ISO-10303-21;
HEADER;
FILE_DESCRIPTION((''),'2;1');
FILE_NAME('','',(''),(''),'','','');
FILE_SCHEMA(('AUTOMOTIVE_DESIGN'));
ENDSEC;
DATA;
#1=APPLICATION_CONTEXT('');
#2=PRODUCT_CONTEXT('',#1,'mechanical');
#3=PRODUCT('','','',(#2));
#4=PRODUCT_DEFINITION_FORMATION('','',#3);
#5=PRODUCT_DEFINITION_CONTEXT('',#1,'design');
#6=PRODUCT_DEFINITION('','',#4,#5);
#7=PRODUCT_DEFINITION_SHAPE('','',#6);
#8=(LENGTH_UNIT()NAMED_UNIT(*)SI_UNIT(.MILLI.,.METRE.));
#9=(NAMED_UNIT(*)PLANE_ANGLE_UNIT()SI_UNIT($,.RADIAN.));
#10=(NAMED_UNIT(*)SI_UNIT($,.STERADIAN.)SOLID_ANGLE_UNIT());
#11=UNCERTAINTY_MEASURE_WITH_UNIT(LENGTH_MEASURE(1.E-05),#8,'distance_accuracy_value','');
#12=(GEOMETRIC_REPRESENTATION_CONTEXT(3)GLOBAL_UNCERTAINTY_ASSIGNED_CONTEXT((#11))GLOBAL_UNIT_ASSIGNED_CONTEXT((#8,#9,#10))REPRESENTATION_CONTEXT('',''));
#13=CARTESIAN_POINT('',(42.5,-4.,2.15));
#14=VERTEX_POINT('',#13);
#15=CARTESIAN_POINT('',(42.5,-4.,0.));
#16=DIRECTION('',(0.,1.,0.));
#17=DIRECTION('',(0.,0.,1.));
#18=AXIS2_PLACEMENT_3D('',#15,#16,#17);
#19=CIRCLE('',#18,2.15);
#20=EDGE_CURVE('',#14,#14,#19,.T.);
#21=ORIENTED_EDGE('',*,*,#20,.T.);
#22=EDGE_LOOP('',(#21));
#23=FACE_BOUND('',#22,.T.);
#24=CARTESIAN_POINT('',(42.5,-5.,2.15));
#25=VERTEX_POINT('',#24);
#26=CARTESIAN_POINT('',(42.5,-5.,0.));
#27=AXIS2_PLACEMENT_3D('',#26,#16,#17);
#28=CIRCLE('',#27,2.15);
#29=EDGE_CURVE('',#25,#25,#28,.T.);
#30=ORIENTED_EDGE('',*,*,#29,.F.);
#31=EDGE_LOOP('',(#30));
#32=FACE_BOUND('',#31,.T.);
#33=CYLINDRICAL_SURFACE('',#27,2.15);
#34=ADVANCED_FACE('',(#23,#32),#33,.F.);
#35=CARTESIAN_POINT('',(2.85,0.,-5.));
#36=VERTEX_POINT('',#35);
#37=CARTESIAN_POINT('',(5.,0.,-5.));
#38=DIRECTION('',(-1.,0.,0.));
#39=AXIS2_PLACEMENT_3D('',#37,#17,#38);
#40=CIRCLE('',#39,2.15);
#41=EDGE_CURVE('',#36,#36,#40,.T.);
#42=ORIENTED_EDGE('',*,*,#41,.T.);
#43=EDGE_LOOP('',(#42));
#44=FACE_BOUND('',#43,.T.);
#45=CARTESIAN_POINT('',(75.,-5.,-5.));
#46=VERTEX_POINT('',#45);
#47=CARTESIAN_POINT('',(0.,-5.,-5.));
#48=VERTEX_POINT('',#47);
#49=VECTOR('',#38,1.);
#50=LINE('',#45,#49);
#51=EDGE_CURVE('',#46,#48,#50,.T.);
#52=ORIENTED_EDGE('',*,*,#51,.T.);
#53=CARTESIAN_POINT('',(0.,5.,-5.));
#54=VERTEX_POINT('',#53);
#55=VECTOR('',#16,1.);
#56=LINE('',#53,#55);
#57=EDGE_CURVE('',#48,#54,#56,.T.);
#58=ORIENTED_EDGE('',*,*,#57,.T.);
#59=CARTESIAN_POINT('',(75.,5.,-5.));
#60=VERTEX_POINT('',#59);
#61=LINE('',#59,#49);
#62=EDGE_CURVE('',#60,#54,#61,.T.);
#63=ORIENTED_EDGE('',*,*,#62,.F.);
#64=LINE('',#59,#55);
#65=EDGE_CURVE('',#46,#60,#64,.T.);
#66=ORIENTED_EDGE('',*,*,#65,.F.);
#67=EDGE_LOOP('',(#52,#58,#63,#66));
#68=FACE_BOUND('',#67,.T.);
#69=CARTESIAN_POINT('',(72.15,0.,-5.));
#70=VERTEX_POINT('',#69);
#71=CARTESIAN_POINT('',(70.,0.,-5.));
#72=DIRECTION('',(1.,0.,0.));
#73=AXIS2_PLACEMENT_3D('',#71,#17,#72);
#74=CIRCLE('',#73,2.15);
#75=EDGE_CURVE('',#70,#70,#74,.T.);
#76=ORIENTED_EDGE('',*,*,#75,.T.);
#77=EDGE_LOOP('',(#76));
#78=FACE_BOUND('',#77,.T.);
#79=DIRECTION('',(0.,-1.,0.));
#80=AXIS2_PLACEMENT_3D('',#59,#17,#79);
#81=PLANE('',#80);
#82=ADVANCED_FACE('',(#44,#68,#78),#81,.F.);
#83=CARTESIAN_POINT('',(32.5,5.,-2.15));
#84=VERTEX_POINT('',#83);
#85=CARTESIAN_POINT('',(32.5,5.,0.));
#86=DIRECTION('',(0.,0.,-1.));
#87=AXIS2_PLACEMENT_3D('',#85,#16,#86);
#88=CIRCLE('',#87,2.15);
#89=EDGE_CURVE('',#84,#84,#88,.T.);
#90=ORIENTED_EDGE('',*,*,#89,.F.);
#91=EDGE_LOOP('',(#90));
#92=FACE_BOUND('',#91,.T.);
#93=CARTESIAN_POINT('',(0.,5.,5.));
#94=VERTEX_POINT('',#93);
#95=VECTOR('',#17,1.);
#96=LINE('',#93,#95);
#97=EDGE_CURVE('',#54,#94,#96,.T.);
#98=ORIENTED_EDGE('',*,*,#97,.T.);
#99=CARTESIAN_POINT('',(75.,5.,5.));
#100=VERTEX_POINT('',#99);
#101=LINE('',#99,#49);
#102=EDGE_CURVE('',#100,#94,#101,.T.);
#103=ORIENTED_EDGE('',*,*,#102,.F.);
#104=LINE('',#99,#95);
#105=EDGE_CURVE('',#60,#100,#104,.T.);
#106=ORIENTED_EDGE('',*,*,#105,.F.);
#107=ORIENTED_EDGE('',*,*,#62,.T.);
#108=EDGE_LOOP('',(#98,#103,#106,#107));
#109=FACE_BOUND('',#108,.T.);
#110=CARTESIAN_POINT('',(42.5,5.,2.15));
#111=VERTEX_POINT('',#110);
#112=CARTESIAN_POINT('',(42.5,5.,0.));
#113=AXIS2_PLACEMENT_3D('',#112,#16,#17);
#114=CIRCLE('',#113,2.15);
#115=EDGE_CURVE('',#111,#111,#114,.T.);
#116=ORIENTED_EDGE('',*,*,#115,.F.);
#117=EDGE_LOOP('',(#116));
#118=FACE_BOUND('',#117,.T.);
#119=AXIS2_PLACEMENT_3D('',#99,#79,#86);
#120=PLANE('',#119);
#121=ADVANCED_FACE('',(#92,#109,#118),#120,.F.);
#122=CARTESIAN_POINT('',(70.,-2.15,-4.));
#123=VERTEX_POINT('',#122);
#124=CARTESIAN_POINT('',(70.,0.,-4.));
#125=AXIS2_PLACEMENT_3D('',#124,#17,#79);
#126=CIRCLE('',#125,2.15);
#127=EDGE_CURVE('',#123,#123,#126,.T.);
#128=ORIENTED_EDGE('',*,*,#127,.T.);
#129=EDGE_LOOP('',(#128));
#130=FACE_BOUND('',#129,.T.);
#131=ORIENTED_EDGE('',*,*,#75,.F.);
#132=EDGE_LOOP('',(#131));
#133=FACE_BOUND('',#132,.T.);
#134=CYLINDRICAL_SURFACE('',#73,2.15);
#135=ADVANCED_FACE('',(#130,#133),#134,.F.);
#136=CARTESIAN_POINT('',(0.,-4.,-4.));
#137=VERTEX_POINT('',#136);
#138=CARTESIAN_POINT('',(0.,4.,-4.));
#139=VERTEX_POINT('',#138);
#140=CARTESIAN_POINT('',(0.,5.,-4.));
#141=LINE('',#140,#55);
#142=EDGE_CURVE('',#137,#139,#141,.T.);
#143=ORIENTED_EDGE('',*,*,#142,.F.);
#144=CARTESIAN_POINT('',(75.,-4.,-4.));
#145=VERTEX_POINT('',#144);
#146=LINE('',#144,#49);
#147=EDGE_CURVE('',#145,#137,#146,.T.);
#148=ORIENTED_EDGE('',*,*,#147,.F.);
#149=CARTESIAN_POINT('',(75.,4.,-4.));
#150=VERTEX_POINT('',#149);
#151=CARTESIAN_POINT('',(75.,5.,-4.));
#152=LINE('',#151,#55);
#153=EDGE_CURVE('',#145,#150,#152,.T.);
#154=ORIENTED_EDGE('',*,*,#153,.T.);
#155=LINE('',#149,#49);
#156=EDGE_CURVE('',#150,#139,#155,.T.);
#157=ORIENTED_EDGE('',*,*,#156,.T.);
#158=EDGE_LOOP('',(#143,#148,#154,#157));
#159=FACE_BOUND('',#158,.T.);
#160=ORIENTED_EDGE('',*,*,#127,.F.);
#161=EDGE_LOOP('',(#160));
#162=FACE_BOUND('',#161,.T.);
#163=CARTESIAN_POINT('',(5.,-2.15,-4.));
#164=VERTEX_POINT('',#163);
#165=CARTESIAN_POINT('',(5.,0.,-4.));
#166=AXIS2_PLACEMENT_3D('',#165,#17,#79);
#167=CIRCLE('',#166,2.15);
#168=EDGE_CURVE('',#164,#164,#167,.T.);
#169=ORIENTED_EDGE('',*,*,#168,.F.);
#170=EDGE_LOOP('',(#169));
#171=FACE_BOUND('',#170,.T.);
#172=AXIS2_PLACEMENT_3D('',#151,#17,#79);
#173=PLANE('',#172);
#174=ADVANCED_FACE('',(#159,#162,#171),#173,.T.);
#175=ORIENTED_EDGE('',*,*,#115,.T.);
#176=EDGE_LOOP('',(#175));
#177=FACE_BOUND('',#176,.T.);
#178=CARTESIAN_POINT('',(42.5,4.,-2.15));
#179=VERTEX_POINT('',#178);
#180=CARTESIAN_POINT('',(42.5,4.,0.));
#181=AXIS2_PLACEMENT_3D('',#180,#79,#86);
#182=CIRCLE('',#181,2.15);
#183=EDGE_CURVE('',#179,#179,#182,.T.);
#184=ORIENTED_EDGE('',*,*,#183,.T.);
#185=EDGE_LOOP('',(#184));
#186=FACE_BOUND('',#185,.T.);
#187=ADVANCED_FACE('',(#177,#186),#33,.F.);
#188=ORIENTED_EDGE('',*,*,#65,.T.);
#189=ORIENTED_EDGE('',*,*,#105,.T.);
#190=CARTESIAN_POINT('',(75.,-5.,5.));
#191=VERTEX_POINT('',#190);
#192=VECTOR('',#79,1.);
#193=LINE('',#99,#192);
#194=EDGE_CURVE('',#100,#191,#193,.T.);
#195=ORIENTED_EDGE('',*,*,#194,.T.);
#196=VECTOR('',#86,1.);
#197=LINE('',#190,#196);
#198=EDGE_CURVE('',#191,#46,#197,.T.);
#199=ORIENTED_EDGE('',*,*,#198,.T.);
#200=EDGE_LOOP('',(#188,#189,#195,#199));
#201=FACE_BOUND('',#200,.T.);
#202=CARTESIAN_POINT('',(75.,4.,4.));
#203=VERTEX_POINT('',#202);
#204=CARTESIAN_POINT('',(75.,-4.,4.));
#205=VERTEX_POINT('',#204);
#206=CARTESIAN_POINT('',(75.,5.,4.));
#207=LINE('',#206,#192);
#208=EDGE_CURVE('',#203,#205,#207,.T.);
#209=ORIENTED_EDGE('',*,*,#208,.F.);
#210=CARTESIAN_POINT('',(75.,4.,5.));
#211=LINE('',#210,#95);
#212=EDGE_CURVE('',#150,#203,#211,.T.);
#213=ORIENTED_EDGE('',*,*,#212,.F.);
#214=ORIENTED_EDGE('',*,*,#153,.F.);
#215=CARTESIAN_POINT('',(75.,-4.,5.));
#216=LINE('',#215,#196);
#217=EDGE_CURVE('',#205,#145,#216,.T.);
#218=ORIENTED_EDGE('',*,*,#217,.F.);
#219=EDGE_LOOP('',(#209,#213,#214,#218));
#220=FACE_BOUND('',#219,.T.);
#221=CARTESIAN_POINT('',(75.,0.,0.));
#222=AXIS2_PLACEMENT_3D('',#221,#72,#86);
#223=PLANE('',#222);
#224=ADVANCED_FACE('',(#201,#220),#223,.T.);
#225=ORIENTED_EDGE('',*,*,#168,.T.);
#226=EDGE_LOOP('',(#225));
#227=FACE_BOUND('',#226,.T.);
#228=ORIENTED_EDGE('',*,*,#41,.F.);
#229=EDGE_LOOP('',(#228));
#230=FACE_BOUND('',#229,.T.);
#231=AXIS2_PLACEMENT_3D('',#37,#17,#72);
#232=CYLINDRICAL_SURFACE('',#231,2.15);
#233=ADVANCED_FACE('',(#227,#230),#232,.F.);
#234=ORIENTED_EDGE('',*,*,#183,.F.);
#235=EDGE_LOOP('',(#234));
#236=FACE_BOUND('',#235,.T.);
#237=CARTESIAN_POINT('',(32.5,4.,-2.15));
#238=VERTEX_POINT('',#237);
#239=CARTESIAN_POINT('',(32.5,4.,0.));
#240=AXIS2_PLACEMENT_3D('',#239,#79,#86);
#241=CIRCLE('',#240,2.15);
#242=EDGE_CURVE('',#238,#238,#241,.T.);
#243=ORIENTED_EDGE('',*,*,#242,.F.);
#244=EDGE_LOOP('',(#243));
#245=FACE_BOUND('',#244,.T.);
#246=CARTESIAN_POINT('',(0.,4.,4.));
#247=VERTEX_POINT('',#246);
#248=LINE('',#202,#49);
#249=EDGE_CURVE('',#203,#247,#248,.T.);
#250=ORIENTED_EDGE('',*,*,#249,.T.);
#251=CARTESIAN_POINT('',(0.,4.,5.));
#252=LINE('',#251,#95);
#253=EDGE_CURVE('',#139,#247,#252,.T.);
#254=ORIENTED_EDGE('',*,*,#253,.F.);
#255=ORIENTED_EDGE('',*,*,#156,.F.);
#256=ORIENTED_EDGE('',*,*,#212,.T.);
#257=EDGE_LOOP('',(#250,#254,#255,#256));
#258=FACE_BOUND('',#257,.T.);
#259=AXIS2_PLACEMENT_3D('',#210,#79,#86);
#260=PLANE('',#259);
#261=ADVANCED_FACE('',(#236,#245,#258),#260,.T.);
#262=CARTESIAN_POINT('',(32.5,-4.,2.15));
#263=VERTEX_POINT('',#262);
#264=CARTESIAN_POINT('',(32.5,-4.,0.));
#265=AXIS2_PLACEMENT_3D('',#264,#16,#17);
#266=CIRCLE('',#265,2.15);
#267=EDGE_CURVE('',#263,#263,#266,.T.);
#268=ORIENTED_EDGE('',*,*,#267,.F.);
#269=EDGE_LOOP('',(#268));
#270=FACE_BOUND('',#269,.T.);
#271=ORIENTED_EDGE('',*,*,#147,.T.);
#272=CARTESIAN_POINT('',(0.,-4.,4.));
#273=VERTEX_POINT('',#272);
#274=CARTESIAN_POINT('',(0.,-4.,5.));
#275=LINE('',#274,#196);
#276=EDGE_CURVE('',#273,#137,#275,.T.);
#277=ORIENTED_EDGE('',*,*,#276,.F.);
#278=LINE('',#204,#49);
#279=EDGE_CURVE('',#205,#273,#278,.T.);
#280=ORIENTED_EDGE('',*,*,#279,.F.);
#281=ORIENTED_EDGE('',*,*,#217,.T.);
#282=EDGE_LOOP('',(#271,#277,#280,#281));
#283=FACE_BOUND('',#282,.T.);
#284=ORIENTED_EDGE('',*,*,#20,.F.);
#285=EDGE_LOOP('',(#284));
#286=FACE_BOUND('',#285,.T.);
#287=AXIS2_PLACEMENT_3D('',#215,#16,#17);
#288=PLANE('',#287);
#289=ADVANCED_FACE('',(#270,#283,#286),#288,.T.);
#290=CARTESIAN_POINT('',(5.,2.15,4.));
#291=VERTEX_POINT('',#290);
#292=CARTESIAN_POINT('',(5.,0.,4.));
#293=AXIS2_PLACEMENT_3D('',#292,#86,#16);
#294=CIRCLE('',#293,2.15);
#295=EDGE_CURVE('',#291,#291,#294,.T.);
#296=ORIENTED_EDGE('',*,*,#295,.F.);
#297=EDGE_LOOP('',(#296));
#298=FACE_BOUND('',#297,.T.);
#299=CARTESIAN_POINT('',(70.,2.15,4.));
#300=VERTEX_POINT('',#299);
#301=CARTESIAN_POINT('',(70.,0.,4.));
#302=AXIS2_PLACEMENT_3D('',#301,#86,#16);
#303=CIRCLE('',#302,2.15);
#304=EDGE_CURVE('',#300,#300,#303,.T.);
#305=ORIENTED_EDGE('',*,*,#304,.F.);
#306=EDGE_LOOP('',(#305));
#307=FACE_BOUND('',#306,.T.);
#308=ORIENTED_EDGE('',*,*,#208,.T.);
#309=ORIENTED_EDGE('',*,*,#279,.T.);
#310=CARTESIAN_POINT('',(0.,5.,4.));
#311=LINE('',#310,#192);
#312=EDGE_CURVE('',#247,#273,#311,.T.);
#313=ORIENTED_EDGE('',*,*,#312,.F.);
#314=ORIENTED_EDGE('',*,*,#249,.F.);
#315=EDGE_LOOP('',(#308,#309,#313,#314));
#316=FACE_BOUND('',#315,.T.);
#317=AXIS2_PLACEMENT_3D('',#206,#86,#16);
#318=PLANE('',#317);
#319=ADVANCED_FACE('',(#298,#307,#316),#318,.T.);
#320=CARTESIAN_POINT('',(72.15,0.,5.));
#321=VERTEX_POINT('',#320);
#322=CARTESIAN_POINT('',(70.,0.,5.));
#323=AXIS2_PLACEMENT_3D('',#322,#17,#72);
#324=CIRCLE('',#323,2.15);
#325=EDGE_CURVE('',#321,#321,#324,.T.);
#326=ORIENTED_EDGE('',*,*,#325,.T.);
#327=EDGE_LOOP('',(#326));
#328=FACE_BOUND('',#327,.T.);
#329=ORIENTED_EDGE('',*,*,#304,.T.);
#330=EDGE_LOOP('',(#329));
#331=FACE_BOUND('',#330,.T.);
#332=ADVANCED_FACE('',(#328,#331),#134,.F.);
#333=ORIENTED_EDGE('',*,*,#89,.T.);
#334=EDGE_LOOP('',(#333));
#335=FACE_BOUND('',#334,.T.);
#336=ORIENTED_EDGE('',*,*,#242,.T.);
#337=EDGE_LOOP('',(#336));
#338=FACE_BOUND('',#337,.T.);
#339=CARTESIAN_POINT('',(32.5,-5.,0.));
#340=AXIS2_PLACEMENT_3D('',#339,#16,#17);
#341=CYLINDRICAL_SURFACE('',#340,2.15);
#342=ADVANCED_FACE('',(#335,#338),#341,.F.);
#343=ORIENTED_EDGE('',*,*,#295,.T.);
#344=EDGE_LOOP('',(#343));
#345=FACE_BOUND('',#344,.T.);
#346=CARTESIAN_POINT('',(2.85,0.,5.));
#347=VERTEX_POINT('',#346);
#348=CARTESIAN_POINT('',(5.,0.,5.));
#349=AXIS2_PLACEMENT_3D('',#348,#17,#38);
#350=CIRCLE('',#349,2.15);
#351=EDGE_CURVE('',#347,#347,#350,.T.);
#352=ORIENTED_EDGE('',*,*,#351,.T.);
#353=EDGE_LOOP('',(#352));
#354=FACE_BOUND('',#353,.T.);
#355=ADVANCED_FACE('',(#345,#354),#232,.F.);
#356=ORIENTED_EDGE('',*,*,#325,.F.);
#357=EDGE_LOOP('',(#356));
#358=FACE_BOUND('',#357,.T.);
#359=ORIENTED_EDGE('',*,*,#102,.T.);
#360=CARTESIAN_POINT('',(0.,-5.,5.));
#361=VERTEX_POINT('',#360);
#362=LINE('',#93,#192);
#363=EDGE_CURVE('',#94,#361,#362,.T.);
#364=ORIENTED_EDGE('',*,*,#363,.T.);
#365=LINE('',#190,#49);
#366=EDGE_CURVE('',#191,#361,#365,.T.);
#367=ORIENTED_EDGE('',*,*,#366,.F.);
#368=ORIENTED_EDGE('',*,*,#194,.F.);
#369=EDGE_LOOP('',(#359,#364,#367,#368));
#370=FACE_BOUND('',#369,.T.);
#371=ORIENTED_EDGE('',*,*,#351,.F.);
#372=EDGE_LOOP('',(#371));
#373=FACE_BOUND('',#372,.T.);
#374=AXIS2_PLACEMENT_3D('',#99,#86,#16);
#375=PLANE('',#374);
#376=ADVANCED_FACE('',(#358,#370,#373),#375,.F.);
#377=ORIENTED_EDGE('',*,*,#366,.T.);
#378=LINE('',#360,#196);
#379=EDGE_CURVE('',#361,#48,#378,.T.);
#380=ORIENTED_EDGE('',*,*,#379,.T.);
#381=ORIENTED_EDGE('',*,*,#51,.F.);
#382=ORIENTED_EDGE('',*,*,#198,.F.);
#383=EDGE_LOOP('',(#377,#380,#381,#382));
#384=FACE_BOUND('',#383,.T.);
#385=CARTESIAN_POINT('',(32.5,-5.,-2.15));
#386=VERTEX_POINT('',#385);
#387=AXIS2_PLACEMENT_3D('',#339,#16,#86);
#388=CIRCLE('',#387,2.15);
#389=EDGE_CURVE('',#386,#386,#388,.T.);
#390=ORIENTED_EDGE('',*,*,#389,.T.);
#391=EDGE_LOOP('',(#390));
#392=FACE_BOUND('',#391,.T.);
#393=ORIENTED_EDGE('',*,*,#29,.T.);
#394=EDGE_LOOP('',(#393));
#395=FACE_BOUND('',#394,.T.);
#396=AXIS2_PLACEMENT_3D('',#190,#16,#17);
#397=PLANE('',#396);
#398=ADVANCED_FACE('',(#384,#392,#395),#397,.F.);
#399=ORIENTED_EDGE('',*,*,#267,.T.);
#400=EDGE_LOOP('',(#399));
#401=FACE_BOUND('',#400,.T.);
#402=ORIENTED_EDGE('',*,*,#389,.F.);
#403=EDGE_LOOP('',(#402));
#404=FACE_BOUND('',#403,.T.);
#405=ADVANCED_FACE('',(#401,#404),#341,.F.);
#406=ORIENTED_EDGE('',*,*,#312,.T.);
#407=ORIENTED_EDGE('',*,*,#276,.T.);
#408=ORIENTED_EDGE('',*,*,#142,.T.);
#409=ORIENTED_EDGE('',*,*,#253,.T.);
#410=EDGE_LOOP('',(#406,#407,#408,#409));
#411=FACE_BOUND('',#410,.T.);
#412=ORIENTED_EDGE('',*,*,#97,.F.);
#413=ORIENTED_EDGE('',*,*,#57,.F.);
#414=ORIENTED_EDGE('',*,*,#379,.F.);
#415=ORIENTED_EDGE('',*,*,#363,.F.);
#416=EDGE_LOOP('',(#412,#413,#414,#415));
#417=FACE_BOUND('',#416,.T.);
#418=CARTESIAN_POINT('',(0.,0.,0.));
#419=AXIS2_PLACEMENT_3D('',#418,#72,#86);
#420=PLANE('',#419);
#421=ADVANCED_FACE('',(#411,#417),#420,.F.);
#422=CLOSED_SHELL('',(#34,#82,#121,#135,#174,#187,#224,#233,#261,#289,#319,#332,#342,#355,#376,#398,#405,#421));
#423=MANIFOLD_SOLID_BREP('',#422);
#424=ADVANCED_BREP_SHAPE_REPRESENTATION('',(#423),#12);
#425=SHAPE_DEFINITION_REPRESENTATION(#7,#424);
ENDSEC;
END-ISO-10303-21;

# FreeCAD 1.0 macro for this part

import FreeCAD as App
import Part
import Sketcher

V = App.Vector
Q = App.Units.Quantity

doc = App.newDocument("Part")
body = doc.addObject("PartDesign::Body", "Body")

# Sketch on YZ plane
sketch1 = doc.addObject("Sketcher::SketchObject", "Sketch")
body.addObject(sketch1)
sketch1.AttachmentSupport = (doc.YZ_Plane, [""])
sketch1.MapMode = "FlatFace"
sketch1.addGeometry(Part.LineSegment(V(5, 5, 0), V(-5, 5, 0)), False)
sketch1.addGeometry(Part.LineSegment(V(-5, 5, 0), V(-5, -5, 0)), False)
sketch1.addGeometry(Part.LineSegment(V(-5, -5, 0), V(5, -5, 0)), False)
sketch1.addGeometry(Part.LineSegment(V(5, -5, 0), V(5, 5, 0)), False)
sketch1.addGeometry(Part.LineSegment(V(-4, -4, 0), V(-4, 4, 0)), False)
sketch1.addGeometry(Part.LineSegment(V(-4, 4, 0), V(4, 4, 0)), False)
sketch1.addGeometry(Part.LineSegment(V(4, 4, 0), V(4, -4, 0)), False)
sketch1.addGeometry(Part.LineSegment(V(4, -4, 0), V(-4, -4, 0)), False)
sketch1.addConstraint(Sketcher.Constraint("Coincident", 0, 2, 1, 1))
sketch1.addConstraint(Sketcher.Constraint("Coincident", 1, 2, 2, 1))
sketch1.addConstraint(Sketcher.Constraint("Coincident", 2, 2, 3, 1))
sketch1.addConstraint(Sketcher.Constraint("Coincident", 3, 2, 0, 1))
sketch1.addConstraint(Sketcher.Constraint("Coincident", 4, 2, 5, 1))
sketch1.addConstraint(Sketcher.Constraint("Coincident", 5, 2, 6, 1))
sketch1.addConstraint(Sketcher.Constraint("Coincident", 6, 2, 7, 1))
sketch1.addConstraint(Sketcher.Constraint("Coincident", 7, 2, 4, 1))
sketch1.addConstraint(Sketcher.Constraint("Horizontal", 0))
sketch1.addConstraint(Sketcher.Constraint("Vertical", 1))
sketch1.addConstraint(Sketcher.Constraint("Horizontal", 2))
sketch1.addConstraint(Sketcher.Constraint("Vertical", 3))
sketch1.addConstraint(Sketcher.Constraint("Vertical", 4))
sketch1.addConstraint(Sketcher.Constraint("Horizontal", 5))
sketch1.addConstraint(Sketcher.Constraint("Vertical", 6))
sketch1.addConstraint(Sketcher.Constraint("Horizontal", 7))
sketch1.addConstraint(Sketcher.Constraint("Symmetric", 0, 2, 2, 2, -1, 1))
sketch1.addConstraint(Sketcher.Constraint("Symmetric", 4, 2, 6, 2, -1, 1))
sketch1.addConstraint(Sketcher.Constraint("Equal", 2, 1))
sketch1.addConstraint(Sketcher.Constraint("Equal", 7, 4))
sketch1.addConstraint(Sketcher.Constraint("DistanceX", 0, 2, 0, 1, Q("10 mm")))
sketch1.addConstraint(Sketcher.Constraint("DistanceX", 5, 1, 5, 2, Q("8 mm")))
pad1 = doc.addObject("PartDesign::Pad", "Pad")
body.addObject(pad1)
pad1.Profile = sketch1
pad1.Length = 75

# Sketch on XY plane
sketch2 = doc.addObject("Sketcher::SketchObject", "Sketch001")
body.addObject(sketch2)
sketch2.AttachmentSupport = (doc.XY_Plane, [""])
sketch2.MapMode = "FlatFace"
sketch2.AttachmentOffset = App.Placement(V(0, 0, 5), App.Rotation())
sketch2.addGeometry(Part.Circle(V(70, 0, 0), V(0, 0, 1), 2.1), False)
sketch2.addGeometry(Part.Circle(V(5, 0, 0), V(0, 0, 1), 2.1), False)
sketch2.addConstraint(Sketcher.Constraint("Equal", 0, 1))
sketch2.addConstraint(Sketcher.Constraint("PointOnObject", 0, 3, -1))
sketch2.addConstraint(Sketcher.Constraint("PointOnObject", 1, 3, -1))
sketch2.addConstraint(Sketcher.Constraint("Diameter", 0, Q("4.3 mm")))
sketch2.addConstraint(Sketcher.Constraint("DistanceX", -1, 1, 0, 3, Q("70 mm")))
sketch2.addConstraint(Sketcher.Constraint("DistanceX", -1, 1, 1, 3, Q("5 mm")))
pocket1 = doc.addObject("PartDesign::Pocket", "Pocket")
body.addObject(pocket1)
pocket1.Profile = sketch2
pocket1.Type = "ThroughAll"

# Sketch on XZ plane
sketch3 = doc.addObject("Sketcher::SketchObject", "Sketch002")
body.addObject(sketch3)
sketch3.AttachmentSupport = (doc.XZ_Plane, [""])
sketch3.MapMode = "FlatFace"
sketch3.AttachmentOffset = App.Placement(V(0, 0, -5), App.Rotation())
sketch3.addGeometry(Part.Circle(V(42.5, 0, 0), V(0, 0, 1), 2.1), False)
sketch3.addGeometry(Part.Circle(V(32.5, 0, 0), V(0, 0, 1), 2.1), False)
sketch3.addConstraint(Sketcher.Constraint("Equal", 0, 1))
sketch3.addConstraint(Sketcher.Constraint("PointOnObject", 0, 3, -1))
sketch3.addConstraint(Sketcher.Constraint("PointOnObject", 1, 3, -1))
sketch3.addConstraint(Sketcher.Constraint("Diameter", 0, Q("4.3 mm")))
sketch3.addConstraint(Sketcher.Constraint("DistanceX", 1, 3, 0, 3, Q("10 mm")))
sketch3.addConstraint(Sketcher.Constraint("DistanceX", -1, 1, 0, 3, Q("42.5 mm")))
pocket2 = doc.addObject("PartDesign::Pocket", "Pocket001")
body.addObject(pocket2)
pocket2.Profile = sketch3
pocket2.Type = "ThroughAll"
pocket2.Reversed = True

doc.recompute()
